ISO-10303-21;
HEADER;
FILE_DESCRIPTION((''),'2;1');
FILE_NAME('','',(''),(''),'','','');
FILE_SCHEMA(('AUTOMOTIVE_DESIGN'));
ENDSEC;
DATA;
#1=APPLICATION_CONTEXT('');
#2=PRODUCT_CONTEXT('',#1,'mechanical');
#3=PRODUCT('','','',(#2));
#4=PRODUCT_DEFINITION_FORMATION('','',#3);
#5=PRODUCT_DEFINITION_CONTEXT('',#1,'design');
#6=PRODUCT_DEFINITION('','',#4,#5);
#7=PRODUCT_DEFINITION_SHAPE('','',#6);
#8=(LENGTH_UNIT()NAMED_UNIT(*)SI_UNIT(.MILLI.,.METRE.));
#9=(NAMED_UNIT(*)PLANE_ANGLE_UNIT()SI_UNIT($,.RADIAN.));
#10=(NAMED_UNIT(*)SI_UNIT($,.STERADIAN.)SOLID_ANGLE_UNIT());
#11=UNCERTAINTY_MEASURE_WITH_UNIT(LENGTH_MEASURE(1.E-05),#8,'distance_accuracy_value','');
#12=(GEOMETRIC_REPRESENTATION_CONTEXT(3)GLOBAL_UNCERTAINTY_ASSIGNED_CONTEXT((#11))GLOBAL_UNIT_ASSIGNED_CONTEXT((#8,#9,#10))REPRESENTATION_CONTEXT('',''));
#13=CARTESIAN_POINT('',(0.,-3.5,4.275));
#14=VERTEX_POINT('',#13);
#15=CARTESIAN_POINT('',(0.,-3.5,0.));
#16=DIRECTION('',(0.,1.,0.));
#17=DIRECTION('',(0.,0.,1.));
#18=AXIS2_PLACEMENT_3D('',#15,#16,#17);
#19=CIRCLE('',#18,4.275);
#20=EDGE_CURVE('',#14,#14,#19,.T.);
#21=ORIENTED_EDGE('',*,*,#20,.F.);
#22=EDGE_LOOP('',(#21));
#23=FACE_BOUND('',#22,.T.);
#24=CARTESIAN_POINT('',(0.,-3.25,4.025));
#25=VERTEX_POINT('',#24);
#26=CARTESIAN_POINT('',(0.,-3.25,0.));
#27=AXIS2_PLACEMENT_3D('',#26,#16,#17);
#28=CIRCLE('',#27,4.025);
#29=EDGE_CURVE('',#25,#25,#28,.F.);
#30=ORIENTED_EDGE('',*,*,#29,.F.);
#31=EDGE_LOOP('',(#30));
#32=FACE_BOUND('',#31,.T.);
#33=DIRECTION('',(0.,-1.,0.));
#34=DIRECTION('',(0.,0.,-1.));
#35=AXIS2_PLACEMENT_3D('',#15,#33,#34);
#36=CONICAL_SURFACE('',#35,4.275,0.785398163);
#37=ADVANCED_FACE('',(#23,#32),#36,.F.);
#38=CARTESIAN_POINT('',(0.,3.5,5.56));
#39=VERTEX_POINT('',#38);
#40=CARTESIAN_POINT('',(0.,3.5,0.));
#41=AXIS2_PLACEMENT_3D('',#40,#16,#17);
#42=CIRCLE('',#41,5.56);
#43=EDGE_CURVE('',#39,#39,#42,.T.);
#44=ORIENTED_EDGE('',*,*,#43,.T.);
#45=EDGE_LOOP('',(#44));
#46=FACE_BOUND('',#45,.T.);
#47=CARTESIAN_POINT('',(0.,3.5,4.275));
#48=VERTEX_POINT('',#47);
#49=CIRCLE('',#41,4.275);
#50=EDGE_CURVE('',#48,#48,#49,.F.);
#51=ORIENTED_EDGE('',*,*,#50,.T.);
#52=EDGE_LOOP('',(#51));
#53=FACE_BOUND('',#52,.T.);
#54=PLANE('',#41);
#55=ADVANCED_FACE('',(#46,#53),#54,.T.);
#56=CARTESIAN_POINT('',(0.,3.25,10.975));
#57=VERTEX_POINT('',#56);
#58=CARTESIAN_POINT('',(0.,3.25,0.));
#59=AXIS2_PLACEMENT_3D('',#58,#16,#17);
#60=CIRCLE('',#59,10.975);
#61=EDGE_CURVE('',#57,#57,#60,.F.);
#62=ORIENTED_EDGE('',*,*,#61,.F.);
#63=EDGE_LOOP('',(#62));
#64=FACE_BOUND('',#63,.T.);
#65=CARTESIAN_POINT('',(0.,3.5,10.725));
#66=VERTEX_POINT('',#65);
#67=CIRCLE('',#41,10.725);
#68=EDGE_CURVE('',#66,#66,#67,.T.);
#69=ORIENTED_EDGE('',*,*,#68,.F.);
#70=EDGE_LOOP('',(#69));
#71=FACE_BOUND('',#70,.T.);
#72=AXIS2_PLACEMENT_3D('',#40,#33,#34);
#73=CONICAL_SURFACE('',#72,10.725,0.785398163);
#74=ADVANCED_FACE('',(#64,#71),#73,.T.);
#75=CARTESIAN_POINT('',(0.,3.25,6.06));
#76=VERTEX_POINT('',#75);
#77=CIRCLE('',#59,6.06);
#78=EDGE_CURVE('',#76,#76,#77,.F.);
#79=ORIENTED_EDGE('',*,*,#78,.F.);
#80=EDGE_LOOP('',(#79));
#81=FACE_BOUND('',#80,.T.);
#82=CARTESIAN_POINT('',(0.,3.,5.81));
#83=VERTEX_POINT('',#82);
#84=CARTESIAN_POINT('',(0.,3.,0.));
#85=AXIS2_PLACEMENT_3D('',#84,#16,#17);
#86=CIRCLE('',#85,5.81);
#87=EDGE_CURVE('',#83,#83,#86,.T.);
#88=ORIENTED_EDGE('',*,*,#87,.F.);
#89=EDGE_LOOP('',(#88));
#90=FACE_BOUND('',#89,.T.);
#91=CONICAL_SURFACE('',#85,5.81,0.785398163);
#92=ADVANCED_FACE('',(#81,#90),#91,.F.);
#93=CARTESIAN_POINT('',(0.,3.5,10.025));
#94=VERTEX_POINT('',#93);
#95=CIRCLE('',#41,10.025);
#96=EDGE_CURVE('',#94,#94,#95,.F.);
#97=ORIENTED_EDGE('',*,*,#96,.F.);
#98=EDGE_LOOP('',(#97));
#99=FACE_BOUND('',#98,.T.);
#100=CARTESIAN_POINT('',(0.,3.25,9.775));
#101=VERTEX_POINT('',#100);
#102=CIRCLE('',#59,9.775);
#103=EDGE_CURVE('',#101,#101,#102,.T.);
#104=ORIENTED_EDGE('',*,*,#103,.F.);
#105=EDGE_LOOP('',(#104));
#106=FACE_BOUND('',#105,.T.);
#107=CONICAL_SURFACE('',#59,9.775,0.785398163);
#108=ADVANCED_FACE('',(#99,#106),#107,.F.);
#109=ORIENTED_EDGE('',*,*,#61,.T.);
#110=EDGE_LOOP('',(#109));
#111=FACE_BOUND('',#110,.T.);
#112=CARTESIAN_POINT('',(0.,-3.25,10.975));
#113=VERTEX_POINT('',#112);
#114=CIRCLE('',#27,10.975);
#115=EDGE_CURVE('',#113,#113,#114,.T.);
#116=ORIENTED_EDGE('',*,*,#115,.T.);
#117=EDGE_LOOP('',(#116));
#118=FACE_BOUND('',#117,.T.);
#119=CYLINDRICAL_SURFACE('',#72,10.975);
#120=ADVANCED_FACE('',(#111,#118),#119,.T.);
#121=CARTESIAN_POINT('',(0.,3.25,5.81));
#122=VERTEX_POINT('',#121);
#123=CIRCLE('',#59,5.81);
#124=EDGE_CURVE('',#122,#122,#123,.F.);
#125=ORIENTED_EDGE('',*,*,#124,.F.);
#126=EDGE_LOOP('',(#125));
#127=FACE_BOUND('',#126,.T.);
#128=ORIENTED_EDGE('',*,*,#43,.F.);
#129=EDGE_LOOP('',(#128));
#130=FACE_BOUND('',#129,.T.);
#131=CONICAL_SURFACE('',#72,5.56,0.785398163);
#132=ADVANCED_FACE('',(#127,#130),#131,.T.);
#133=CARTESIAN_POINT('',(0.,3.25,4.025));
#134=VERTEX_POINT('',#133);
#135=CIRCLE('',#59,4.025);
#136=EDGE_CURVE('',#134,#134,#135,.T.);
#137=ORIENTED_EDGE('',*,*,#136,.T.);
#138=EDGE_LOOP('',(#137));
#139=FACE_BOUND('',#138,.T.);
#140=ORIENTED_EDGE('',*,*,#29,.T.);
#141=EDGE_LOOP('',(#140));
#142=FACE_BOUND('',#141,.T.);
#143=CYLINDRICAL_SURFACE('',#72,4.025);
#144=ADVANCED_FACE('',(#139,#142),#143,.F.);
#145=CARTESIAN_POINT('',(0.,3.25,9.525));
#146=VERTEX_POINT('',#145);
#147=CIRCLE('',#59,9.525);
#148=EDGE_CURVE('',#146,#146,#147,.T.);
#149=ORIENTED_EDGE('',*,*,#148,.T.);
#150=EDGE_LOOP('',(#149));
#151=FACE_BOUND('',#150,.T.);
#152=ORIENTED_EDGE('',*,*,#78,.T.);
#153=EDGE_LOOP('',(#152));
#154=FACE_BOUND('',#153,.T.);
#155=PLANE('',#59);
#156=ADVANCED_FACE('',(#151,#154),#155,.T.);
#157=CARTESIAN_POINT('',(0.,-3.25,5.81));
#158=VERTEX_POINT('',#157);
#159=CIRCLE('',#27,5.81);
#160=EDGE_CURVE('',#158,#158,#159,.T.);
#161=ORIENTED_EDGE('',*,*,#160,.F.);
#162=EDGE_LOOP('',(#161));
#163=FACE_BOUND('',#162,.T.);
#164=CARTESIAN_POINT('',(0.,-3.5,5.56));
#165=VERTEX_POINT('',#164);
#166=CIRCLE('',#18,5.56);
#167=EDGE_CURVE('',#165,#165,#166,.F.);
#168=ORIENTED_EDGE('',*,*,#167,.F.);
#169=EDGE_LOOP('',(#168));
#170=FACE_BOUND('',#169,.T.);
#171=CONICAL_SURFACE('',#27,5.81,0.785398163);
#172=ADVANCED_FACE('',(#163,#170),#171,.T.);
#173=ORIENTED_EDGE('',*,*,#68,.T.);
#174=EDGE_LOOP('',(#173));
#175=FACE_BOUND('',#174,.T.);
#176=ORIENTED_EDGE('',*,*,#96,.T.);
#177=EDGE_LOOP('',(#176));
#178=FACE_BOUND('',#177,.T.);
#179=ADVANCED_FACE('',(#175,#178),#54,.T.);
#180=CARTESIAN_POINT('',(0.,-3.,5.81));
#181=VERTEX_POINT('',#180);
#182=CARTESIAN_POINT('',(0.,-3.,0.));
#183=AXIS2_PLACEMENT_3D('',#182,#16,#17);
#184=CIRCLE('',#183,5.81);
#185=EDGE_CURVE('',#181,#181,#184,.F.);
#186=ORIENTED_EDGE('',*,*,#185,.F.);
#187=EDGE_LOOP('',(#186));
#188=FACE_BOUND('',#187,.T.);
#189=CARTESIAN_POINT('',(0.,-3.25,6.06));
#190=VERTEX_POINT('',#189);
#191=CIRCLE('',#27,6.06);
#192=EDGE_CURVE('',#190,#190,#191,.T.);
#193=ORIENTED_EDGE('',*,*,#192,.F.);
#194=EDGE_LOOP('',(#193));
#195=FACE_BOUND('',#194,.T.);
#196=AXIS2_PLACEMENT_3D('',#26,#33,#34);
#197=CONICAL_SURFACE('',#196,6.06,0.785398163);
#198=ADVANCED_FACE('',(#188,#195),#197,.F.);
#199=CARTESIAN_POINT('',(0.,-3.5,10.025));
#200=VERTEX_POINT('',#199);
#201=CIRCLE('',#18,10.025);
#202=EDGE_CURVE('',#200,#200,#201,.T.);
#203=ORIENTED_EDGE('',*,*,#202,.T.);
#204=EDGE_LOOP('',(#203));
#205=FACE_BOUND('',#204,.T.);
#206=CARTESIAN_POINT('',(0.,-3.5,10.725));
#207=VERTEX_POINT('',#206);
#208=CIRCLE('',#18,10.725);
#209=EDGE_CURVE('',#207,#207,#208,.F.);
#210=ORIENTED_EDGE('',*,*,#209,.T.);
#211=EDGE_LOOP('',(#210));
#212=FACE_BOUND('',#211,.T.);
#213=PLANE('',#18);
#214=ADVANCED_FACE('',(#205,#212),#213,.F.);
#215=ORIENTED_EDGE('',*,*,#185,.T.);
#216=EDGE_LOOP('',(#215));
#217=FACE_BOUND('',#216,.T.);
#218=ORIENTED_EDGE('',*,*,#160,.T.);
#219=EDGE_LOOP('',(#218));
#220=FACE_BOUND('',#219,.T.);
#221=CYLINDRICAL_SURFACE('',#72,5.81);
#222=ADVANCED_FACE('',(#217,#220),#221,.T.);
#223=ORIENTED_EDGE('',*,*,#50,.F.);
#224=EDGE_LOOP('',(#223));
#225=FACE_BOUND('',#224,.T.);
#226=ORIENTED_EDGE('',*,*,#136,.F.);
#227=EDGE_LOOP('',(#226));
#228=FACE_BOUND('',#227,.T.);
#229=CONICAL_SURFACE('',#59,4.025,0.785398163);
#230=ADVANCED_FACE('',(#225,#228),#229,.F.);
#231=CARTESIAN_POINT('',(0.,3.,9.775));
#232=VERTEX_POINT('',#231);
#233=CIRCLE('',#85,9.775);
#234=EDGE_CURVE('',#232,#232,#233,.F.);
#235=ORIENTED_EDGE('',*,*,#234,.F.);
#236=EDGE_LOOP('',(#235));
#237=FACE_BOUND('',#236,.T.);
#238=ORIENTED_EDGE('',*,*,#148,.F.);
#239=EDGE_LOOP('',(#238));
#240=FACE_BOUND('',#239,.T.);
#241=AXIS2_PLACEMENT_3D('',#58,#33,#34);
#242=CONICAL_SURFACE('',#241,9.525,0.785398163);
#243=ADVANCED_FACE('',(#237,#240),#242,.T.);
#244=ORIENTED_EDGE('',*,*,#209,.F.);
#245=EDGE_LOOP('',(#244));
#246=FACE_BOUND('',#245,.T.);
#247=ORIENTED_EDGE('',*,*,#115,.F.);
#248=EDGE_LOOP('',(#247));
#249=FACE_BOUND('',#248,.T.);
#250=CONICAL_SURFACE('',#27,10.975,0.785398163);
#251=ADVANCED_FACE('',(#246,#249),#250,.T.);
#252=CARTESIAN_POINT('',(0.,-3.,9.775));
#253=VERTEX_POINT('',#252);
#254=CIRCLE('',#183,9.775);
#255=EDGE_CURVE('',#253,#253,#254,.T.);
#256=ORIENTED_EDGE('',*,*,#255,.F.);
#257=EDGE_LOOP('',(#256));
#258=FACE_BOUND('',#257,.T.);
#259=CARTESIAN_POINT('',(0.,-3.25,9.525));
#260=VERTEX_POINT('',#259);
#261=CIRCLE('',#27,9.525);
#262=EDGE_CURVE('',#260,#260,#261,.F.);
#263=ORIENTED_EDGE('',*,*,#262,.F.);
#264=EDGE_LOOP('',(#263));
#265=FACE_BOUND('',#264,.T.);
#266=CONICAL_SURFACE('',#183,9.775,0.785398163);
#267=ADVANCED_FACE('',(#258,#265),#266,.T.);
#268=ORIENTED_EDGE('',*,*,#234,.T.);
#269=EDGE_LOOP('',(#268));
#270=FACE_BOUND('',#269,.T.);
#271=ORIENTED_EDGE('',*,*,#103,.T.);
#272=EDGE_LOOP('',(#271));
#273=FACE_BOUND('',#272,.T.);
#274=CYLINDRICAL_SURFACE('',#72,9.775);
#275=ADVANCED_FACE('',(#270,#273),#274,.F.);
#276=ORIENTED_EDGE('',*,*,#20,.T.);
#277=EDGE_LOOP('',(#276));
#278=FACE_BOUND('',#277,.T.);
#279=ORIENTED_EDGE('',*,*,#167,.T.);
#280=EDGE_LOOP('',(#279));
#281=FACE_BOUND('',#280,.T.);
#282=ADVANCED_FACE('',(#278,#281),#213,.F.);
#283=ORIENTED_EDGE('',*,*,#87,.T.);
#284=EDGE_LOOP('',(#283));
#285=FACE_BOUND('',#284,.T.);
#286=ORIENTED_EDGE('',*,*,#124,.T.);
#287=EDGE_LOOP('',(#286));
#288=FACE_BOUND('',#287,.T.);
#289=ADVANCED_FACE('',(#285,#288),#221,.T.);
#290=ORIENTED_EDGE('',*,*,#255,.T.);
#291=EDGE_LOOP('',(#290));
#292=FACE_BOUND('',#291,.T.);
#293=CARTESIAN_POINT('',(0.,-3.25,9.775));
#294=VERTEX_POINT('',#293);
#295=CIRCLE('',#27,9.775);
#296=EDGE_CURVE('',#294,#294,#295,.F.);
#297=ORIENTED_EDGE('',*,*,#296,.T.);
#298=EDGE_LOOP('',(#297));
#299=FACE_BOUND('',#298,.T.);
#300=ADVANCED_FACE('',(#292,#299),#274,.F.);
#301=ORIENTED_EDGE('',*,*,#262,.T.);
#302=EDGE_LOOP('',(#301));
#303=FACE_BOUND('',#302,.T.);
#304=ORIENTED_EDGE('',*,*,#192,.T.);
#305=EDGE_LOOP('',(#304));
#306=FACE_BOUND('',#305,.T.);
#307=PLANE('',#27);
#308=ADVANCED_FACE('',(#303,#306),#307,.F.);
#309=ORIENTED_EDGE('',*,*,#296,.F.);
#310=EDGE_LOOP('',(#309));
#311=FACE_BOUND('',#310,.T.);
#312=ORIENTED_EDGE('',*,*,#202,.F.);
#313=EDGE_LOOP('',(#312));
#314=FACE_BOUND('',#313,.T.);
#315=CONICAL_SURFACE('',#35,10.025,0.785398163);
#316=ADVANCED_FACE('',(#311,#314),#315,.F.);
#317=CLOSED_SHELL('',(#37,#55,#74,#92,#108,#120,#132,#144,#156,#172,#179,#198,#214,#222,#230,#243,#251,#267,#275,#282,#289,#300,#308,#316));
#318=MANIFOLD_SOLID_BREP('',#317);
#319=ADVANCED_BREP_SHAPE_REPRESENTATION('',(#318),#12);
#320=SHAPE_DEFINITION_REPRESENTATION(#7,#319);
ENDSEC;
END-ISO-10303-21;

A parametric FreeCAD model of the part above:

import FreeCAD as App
import Part
import Sketcher

V = App.Vector
Q = App.Units.Quantity


def edges_at(feature, points):
    """Names of the edges that pass closest to the given points."""
    edges = feature.Shape.Edges
    near = lambda p: min(range(len(edges)), key=lambda i: edges[i].distToShape(Part.Vertex(*p))[0])
    return sorted({f"Edge{near(p) + 1}" for p in points})

doc = App.newDocument("Part")
params = doc.addObject("Spreadsheet::Sheet", "Params")
for row, (alias, value) in enumerate([
    ("sketch1_diameter", "21.95 mm"),
    ("sketch1_diameter2", "19.55 mm"),
    ("pad1_length", "7 mm"),
    ("chamfer_size", "0.25 mm"),
    ("sketch2_diameter", "11.62 mm"),
    ("sketch2_diameter2", "8.05 mm"),
    ("pad2_length", "7 mm"),
    ("chamfer2_size", "0.25 mm"),
    ("sketch3_diameter", "19.55 mm"),
    ("sketch3_diameter2", "11.62 mm"),
    ("pad3_length", "6.5 mm"),
    ("chamfer3_size", "0.25 mm"),
], start=1):
    params.set(f"A{row}", alias)
    params.set(f"B{row}", "=" + value)
    params.setAlias(f"B{row}", alias)

body = doc.addObject("PartDesign::Body", "Body")

sketch1 = body.newObject("Sketcher::SketchObject", "Sketch")
sketch1.AttachmentSupport = (doc.getObject("XZ_Plane"), [""])
sketch1.MapMode = "FlatFace"
sketch1.addGeometry([
    Part.Circle(V(0, 0, 0), V(0, 0, 1), 11),
    Part.Circle(V(0, 0, 0), V(0, 0, 1), 10),
], False)
sketch1.addConstraint([
    Sketcher.Constraint("Coincident", 0, 3, -1, 1),
    Sketcher.Constraint("Coincident", 1, 3, -1, 1),
    Sketcher.Constraint("Diameter", 0, Q("21.95 mm")),
    Sketcher.Constraint("Diameter", 1, Q("19.55 mm")),
])
sketch1.setExpression("Constraints[2]", "Params.sketch1_diameter")
sketch1.setExpression("Constraints[3]", "Params.sketch1_diameter2")
pad1 = body.newObject("PartDesign::Pad", "Pad")
pad1.Profile = sketch1
pad1.setExpression("Length", "Params.pad1_length")
pad1.Midplane = True
doc.recompute()

chamfer = body.newObject("PartDesign::Chamfer", "Chamfer")
chamfer.Base = (pad1, edges_at(pad1, [
    (-10.975, 3.5, 0),
    (-10.975, -3.5, 0),
    (-9.775, -3.5, 0),
    (-9.775, 3.5, 0),
]))
chamfer.setExpression("Size", "Params.chamfer_size")
body2 = doc.addObject("PartDesign::Body", "Body001")

sketch2 = body2.newObject("Sketcher::SketchObject", "Sketch001")
sketch2.AttachmentSupport = (doc.getObject("XZ_Plane001"), [""])
sketch2.MapMode = "FlatFace"
sketch2.addGeometry([
    Part.Circle(V(0, 0, 0), V(0, 0, 1), 5.8),
    Part.Circle(V(0, 0, 0), V(0, 0, 1), 4),
], False)
sketch2.addConstraint([
    Sketcher.Constraint("Coincident", 0, 3, -1, 1),
    Sketcher.Constraint("Coincident", 1, 3, -1, 1),
    Sketcher.Constraint("Diameter", 0, Q("11.62 mm")),
    Sketcher.Constraint("Diameter", 1, Q("8.05 mm")),
])
sketch2.setExpression("Constraints[2]", "Params.sketch2_diameter")
sketch2.setExpression("Constraints[3]", "Params.sketch2_diameter2")
pad2 = body2.newObject("PartDesign::Pad", "Pad001")
pad2.Profile = sketch2
pad2.setExpression("Length", "Params.pad2_length")
pad2.Midplane = True
doc.recompute()

chamfer2 = body2.newObject("PartDesign::Chamfer", "Chamfer001")
chamfer2.Base = (pad2, edges_at(pad2, [
    (-5.81, 3.5, 0),
    (-5.81, -3.5, 0),
    (-4.025, -3.5, 0),
    (-4.025, 3.5, 0),
]))
chamfer2.setExpression("Size", "Params.chamfer2_size")
body3 = doc.addObject("PartDesign::Body", "Body002")

sketch3 = body3.newObject("Sketcher::SketchObject", "Sketch002")
sketch3.AttachmentSupport = (doc.getObject("XZ_Plane002"), [""])
sketch3.MapMode = "FlatFace"
sketch3.addGeometry([
    Part.Circle(V(0, 0, 0), V(0, 0, 1), 10),
    Part.Circle(V(0, 0, 0), V(0, 0, 1), 6),
], False)
sketch3.addConstraint([
    Sketcher.Constraint("Coincident", 0, 3, -1, 1),
    Sketcher.Constraint("Coincident", 1, 3, -1, 1),
    Sketcher.Constraint("Diameter", 0, Q("19.55 mm")),
    Sketcher.Constraint("Diameter", 1, Q("11.62 mm")),
])
sketch3.setExpression("Constraints[2]", "Params.sketch3_diameter")
sketch3.setExpression("Constraints[3]", "Params.sketch3_diameter2")
pad3 = body3.newObject("PartDesign::Pad", "Pad002")
pad3.Profile = sketch3
pad3.setExpression("Length", "Params.pad3_length")
pad3.Midplane = True
doc.recompute()

chamfer3 = body3.newObject("PartDesign::Chamfer", "Chamfer002")
chamfer3.Base = (pad3, edges_at(pad3, [
    (-9.775, 3.25, 0),
    (-9.775, -3.25, 0),
    (-5.81, -3.25, 0),
    (-5.81, 3.25, 0),
]))
chamfer3.setExpression("Size", "Params.chamfer3_size")
doc.recompute()

boolean = body3.newObject("PartDesign::Boolean", "Boolean")
boolean.Type = "Fuse"
boolean.addObjects([body2])
doc.recompute()

boolean2 = body3.newObject("PartDesign::Boolean", "Boolean001")
boolean2.Type = "Fuse"
boolean2.addObjects([body])

doc.recompute()
